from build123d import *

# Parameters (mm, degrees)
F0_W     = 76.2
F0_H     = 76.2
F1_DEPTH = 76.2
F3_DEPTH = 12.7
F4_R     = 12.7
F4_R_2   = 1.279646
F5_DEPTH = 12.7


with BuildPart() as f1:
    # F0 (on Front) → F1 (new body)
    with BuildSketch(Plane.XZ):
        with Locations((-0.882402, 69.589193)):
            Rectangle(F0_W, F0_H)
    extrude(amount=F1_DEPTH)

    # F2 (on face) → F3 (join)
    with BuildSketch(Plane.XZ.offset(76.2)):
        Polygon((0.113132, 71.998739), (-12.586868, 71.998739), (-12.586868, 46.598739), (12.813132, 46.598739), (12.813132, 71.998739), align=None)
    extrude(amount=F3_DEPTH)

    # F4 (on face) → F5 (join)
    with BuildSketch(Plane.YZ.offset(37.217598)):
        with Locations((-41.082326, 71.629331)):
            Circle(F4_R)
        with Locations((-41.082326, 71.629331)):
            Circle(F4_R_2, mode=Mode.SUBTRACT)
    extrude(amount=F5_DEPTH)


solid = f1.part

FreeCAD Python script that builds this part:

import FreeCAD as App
import Part
import Sketcher
from FreeCAD import Vector
Q = App.Units.Quantity


def add_polygon(sketch, points):
    """Adds a closed chain of lines whose ends are joined by coincident constraints."""
    first, n = sketch.GeometryCount, len(points)
    for a, b in zip(points, points[1:] + points[:1]):
        sketch.addGeometry(Part.LineSegment(App.Vector(*a, 0), App.Vector(*b, 0)), False)
    for i in range(n):
        sketch.addConstraint(Sketcher.Constraint("Coincident", first + i, 2, first + (i + 1) % n, 1))

doc = App.newDocument("Part")
body = doc.addObject("PartDesign::Body", "Body")

# Sketch on XZ plane
sketch1 = body.newObject("Sketcher::SketchObject", "Sketch")
sketch1.AttachmentSupport = (doc.getObject("XZ_Plane"), [""])
sketch1.MapMode = "FlatFace"
add_polygon(sketch1, [(-39, 108), (-39, 31), (37, 31), (37, 108)])  # lines 0-3
sketch1.addConstraint([
    Sketcher.Constraint("Vertical", 0),
    Sketcher.Constraint("Horizontal", 1),
    Sketcher.Constraint("Vertical", 2),
    Sketcher.Constraint("Horizontal", 3),
    Sketcher.Constraint("Equal", 3, 0),
    Sketcher.Constraint("DistanceX", 1, 1, 1, 2, Q("3 in")),
    Sketcher.Constraint("DistanceX", -1, 1, 1, 2, 37.217598),
    Sketcher.Constraint("DistanceY", -1, 1, 0, 2, 31.489193),
])
pad1 = body.newObject("PartDesign::Pad", "Pad")
pad1.Profile = sketch1
pad1.Length = Q("3 in")

# Sketch on XZ plane
sketch2 = body.newObject("Sketcher::SketchObject", "Sketch001")
sketch2.AttachmentSupport = (doc.getObject("XZ_Plane"), [""])
sketch2.MapMode = "FlatFace"
sketch2.AttachmentOffset = App.Placement(Vector(0, 0, 3 * 25.4), App.Rotation())
add_polygon(sketch2, [(-13, 72), (-13, 47), (13, 47), (13, 72)])  # lines 0-3
sketch2.addConstraint([
    Sketcher.Constraint("Vertical", 0),
    Sketcher.Constraint("Horizontal", 1),
    Sketcher.Constraint("Vertical", 2),
    Sketcher.Constraint("Horizontal", 3),
    Sketcher.Constraint("Equal", 3, 0),
    Sketcher.Constraint("DistanceX", 1, 1, 1, 2, Q("1 in")),
    Sketcher.Constraint("DistanceX", 0, 2, -1, 1, 12.586868),
    Sketcher.Constraint("DistanceY", -1, 1, 0, 2, 46.598739),
])
pad2 = body.newObject("PartDesign::Pad", "Pad001")
pad2.Profile = sketch2
pad2.Length = Q("0.5 in")

# Sketch on YZ plane
sketch3 = body.newObject("Sketcher::SketchObject", "Sketch002")
sketch3.AttachmentSupport = (doc.getObject("YZ_Plane"), [""])
sketch3.MapMode = "FlatFace"
sketch3.AttachmentOffset = App.Placement(Vector(0, 0, 37.217598), App.Rotation())
sketch3.addGeometry([
    Part.Circle(Vector(-41.1, 71.6, 0), Vector(0, 0, 1), 12.7),
    Part.Circle(Vector(-41.1, 71.6, 0), Vector(0, 0, 1), 1.3),
], False)
sketch3.addConstraint([
    Sketcher.Constraint("Coincident", 1, 3, 0, 3),
    Sketcher.Constraint("Diameter", 0, Q("1 in")),
    Sketcher.Constraint("Diameter", 1, 2.559292),
    Sketcher.Constraint("DistanceY", -1, 1, 0, 3, 71.629331),
    Sketcher.Constraint("DistanceX", 0, 3, -1, 1, 41.082326),
])
pad3 = body.newObject("PartDesign::Pad", "Pad002")
pad3.Profile = sketch3
pad3.Length = Q("0.5 in")

doc.recompute()
